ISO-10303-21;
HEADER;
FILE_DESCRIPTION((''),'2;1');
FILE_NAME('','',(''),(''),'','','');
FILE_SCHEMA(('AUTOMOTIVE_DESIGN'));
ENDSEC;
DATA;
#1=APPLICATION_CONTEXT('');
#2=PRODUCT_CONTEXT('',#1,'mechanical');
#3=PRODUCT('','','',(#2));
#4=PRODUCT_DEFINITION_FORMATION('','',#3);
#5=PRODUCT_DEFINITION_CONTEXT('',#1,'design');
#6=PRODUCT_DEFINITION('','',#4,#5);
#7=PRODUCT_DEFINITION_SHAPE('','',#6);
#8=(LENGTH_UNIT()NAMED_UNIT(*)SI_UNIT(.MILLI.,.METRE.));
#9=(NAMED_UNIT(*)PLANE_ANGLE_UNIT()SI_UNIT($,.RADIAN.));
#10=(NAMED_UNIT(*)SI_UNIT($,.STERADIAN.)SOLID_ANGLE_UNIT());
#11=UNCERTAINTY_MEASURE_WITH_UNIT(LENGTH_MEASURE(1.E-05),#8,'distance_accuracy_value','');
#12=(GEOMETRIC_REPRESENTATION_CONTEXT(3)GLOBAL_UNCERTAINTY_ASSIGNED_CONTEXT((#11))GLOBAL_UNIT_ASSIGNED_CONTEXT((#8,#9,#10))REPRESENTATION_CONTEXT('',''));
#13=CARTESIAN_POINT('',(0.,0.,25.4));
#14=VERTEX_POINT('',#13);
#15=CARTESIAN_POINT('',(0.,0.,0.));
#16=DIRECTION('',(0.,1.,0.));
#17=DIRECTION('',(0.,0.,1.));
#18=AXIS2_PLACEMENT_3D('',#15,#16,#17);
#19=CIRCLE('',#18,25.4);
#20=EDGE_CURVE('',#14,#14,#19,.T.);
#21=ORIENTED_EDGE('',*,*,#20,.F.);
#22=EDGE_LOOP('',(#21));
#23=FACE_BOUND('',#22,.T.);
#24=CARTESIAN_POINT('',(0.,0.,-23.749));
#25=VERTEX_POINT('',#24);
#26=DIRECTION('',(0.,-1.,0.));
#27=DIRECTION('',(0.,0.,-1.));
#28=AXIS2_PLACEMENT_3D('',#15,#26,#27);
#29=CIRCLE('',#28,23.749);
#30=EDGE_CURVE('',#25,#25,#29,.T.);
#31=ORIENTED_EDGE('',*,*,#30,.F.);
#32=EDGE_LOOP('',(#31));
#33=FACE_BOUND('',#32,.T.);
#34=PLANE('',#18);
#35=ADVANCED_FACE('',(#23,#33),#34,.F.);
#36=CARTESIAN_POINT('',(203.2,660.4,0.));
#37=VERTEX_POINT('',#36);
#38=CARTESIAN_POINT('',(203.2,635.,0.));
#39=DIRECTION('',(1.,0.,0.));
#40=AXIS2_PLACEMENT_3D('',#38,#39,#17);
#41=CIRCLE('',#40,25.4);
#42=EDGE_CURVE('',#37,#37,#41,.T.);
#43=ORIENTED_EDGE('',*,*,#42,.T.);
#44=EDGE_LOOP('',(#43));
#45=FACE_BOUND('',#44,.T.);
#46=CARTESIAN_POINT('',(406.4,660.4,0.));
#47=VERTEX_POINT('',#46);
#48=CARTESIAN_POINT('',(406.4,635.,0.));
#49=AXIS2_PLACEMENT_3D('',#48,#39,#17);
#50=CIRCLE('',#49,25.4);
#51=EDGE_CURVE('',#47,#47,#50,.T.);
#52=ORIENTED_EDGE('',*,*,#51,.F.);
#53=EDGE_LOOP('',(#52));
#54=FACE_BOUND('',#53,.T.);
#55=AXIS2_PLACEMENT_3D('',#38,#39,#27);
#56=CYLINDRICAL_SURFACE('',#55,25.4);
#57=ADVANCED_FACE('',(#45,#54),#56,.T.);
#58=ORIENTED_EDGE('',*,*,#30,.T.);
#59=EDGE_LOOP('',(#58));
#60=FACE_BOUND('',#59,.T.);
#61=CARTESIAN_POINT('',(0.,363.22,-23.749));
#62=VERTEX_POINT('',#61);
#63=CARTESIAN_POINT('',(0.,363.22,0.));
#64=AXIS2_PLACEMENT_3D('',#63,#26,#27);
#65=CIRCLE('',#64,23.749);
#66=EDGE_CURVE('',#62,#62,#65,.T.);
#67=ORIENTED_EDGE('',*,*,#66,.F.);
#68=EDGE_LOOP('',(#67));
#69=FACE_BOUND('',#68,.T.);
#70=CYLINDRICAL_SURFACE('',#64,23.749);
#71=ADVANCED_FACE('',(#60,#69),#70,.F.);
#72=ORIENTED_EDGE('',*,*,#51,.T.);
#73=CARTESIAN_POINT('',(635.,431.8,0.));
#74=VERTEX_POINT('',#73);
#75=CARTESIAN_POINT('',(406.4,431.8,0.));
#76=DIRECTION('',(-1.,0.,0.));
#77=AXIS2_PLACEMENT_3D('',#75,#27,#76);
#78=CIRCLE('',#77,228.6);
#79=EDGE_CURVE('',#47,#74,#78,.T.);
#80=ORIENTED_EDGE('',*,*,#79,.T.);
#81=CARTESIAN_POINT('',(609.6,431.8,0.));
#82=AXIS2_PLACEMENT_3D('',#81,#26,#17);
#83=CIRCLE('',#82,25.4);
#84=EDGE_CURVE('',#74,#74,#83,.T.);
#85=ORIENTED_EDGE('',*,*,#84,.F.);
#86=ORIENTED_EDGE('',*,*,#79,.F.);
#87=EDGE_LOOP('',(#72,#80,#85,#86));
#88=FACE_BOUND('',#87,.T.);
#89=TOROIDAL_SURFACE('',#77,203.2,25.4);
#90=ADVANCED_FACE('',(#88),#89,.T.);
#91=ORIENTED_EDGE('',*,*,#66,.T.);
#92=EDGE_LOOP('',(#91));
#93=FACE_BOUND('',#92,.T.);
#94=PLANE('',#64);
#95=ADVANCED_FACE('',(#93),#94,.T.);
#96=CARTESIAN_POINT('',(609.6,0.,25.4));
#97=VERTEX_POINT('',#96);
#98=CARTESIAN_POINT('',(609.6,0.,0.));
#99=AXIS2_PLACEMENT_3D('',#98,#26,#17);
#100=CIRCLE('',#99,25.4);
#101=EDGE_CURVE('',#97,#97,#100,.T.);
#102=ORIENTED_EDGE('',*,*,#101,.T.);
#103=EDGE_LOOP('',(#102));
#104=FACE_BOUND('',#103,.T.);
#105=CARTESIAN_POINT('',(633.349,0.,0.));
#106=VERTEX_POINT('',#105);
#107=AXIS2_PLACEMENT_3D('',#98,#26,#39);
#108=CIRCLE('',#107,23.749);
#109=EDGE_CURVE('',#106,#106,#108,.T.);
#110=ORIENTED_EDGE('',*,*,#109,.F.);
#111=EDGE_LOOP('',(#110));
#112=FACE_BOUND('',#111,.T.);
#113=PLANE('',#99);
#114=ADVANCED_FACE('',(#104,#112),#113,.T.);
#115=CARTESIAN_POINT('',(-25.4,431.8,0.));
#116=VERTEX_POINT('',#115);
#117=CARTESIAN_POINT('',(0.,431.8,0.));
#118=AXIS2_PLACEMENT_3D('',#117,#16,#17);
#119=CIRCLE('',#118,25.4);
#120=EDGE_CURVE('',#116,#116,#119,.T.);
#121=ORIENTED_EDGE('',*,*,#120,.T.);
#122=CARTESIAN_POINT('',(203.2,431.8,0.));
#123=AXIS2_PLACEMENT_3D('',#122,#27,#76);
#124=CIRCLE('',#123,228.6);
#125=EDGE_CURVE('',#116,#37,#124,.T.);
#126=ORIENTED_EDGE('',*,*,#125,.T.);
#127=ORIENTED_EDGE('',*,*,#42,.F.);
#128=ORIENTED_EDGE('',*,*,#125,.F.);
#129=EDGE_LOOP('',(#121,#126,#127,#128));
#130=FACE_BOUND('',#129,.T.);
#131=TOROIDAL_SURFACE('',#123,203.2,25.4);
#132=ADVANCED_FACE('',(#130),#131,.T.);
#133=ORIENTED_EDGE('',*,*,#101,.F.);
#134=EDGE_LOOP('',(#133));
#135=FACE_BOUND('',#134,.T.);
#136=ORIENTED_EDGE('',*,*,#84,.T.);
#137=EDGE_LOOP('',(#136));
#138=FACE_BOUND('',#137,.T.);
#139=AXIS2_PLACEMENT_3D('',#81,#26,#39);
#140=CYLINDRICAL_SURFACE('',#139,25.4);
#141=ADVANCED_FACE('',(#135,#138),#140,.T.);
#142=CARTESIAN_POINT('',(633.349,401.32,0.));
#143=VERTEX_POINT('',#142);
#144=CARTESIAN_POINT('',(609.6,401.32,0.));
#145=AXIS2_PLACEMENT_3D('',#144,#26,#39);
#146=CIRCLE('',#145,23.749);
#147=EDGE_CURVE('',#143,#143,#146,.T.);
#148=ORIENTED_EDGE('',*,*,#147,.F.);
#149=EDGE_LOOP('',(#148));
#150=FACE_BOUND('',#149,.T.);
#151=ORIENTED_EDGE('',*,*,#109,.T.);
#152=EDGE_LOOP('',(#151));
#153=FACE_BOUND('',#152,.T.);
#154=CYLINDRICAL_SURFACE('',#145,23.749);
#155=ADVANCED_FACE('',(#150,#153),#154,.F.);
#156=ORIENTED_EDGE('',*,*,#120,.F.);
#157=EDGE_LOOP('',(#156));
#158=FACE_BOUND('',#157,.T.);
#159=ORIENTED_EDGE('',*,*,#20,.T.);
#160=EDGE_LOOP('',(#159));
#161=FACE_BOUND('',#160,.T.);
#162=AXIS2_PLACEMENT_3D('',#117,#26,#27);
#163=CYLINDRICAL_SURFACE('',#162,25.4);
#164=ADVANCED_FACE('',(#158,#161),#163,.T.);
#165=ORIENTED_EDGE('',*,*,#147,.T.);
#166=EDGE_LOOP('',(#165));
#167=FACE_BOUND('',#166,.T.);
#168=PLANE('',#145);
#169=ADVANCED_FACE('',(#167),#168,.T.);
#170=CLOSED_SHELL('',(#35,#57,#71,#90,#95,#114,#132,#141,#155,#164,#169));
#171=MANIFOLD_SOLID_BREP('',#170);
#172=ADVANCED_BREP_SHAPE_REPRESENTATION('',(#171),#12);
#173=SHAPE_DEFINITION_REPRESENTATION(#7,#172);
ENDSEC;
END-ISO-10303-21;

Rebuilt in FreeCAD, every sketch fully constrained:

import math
import FreeCAD as App
import Part
import Sketcher

V = App.Vector
Q = App.Units.Quantity

doc = App.newDocument("Part")
body = doc.addObject("PartDesign::Body", "Body")

sketch1 = body.newObject("Sketcher::SketchObject", "Sketch")
sketch1.AttachmentSupport = (doc.getObject("XZ_Plane"), [""])
sketch1.MapMode = "FlatFace"
sketch1.addGeometry(Part.Circle(V(0, 0, 0), V(0, 0, 1), 25), False)
sketch1.addConstraint([
    Sketcher.Constraint("Coincident", 0, 3, -1, 1),
    Sketcher.Constraint("Diameter", 0, Q("2 in")),
])

sketch2 = body.newObject("Sketcher::SketchObject", "Sketch001")
sketch2.AttachmentSupport = (doc.getObject("XY_Plane"), [""])
sketch2.MapMode = "FlatFace"
sketch2.addGeometry([
    Part.LineSegment(V(0, 0, 0), V(0, 432, 0)),
    Part.ArcOfCircle(Part.Circle(V(203, 432, 0), V(0, 0, 1), 203), math.radians(90), math.radians(180)),
    Part.LineSegment(V(203, 635, 0), V(406, 635, 0)),
    Part.ArcOfCircle(Part.Circle(V(406, 432, 0), V(0, 0, 1), 203), math.radians(0), math.radians(90)),
    Part.LineSegment(V(610, 432, 0), V(610, 0, 0)),
], False)
sketch2.addConstraint([
    Sketcher.Constraint("Tangent", 0, 2, 1, 2),
    Sketcher.Constraint("Tangent", 1, 1, 2, 1),
    Sketcher.Constraint("Tangent", 2, 2, 3, 2),
    Sketcher.Constraint("Tangent", 3, 1, 4, 1),
    Sketcher.Constraint("Vertical", 0),
    Sketcher.Constraint("Horizontal", 2),
    Sketcher.Constraint("Vertical", 4),
    Sketcher.Constraint("Coincident", 0, 1, -1, 1),
    Sketcher.Constraint("Equal", 1, 3),
    Sketcher.Constraint("PointOnObject", 4, 2, -1),
    Sketcher.Constraint("Radius", 1, Q("8 in")),
    Sketcher.Constraint("DistanceX", 2, 1, 2, 2, Q("8 in")),
    Sketcher.Constraint("DistanceY", 0, 1, 0, 2, Q("17 in")),
])
doc.recompute()

additivepipe = body.newObject("PartDesign::AdditivePipe", "AdditivePipe")
additivepipe.Profile = sketch1
additivepipe.Spine = (sketch2, ["Edge1", "Edge2", "Edge3", "Edge4", "Edge5"])

sketch3 = body.newObject("Sketcher::SketchObject", "Sketch002")
sketch3.AttachmentSupport = (doc.getObject("XZ_Plane"), [""])
sketch3.MapMode = "FlatFace"
sketch3.addGeometry(Part.Circle(V(0, 0, 0), V(0, 0, 1), 24), False)
sketch3.addConstraint([
    Sketcher.Constraint("Coincident", 0, 3, -1, 1),
    Sketcher.Constraint("Diameter", 0, Q("1.87 in")),
])
pocket1 = body.newObject("PartDesign::Pocket", "Pocket")
pocket1.Profile = sketch3
pocket1.Length = Q("14.3 in")

sketch4 = body.newObject("Sketcher::SketchObject", "Sketch003")
sketch4.AttachmentSupport = (doc.getObject("XZ_Plane"), [""])
sketch4.MapMode = "FlatFace"
sketch4.addGeometry(Part.Circle(V(610, 0, 0), V(0, 0, 1), 24), False)
sketch4.addConstraint([
    Sketcher.Constraint("PointOnObject", 0, 3, -1),
    Sketcher.Constraint("Diameter", 0, Q("1.87 in")),
    Sketcher.Constraint("DistanceX", -1, 1, 0, 3, Q("24 in")),
])
pocket2 = body.newObject("PartDesign::Pocket", "Pocket001")
pocket2.Profile = sketch4
pocket2.Length = Q("15.8 in")

doc.recompute()
